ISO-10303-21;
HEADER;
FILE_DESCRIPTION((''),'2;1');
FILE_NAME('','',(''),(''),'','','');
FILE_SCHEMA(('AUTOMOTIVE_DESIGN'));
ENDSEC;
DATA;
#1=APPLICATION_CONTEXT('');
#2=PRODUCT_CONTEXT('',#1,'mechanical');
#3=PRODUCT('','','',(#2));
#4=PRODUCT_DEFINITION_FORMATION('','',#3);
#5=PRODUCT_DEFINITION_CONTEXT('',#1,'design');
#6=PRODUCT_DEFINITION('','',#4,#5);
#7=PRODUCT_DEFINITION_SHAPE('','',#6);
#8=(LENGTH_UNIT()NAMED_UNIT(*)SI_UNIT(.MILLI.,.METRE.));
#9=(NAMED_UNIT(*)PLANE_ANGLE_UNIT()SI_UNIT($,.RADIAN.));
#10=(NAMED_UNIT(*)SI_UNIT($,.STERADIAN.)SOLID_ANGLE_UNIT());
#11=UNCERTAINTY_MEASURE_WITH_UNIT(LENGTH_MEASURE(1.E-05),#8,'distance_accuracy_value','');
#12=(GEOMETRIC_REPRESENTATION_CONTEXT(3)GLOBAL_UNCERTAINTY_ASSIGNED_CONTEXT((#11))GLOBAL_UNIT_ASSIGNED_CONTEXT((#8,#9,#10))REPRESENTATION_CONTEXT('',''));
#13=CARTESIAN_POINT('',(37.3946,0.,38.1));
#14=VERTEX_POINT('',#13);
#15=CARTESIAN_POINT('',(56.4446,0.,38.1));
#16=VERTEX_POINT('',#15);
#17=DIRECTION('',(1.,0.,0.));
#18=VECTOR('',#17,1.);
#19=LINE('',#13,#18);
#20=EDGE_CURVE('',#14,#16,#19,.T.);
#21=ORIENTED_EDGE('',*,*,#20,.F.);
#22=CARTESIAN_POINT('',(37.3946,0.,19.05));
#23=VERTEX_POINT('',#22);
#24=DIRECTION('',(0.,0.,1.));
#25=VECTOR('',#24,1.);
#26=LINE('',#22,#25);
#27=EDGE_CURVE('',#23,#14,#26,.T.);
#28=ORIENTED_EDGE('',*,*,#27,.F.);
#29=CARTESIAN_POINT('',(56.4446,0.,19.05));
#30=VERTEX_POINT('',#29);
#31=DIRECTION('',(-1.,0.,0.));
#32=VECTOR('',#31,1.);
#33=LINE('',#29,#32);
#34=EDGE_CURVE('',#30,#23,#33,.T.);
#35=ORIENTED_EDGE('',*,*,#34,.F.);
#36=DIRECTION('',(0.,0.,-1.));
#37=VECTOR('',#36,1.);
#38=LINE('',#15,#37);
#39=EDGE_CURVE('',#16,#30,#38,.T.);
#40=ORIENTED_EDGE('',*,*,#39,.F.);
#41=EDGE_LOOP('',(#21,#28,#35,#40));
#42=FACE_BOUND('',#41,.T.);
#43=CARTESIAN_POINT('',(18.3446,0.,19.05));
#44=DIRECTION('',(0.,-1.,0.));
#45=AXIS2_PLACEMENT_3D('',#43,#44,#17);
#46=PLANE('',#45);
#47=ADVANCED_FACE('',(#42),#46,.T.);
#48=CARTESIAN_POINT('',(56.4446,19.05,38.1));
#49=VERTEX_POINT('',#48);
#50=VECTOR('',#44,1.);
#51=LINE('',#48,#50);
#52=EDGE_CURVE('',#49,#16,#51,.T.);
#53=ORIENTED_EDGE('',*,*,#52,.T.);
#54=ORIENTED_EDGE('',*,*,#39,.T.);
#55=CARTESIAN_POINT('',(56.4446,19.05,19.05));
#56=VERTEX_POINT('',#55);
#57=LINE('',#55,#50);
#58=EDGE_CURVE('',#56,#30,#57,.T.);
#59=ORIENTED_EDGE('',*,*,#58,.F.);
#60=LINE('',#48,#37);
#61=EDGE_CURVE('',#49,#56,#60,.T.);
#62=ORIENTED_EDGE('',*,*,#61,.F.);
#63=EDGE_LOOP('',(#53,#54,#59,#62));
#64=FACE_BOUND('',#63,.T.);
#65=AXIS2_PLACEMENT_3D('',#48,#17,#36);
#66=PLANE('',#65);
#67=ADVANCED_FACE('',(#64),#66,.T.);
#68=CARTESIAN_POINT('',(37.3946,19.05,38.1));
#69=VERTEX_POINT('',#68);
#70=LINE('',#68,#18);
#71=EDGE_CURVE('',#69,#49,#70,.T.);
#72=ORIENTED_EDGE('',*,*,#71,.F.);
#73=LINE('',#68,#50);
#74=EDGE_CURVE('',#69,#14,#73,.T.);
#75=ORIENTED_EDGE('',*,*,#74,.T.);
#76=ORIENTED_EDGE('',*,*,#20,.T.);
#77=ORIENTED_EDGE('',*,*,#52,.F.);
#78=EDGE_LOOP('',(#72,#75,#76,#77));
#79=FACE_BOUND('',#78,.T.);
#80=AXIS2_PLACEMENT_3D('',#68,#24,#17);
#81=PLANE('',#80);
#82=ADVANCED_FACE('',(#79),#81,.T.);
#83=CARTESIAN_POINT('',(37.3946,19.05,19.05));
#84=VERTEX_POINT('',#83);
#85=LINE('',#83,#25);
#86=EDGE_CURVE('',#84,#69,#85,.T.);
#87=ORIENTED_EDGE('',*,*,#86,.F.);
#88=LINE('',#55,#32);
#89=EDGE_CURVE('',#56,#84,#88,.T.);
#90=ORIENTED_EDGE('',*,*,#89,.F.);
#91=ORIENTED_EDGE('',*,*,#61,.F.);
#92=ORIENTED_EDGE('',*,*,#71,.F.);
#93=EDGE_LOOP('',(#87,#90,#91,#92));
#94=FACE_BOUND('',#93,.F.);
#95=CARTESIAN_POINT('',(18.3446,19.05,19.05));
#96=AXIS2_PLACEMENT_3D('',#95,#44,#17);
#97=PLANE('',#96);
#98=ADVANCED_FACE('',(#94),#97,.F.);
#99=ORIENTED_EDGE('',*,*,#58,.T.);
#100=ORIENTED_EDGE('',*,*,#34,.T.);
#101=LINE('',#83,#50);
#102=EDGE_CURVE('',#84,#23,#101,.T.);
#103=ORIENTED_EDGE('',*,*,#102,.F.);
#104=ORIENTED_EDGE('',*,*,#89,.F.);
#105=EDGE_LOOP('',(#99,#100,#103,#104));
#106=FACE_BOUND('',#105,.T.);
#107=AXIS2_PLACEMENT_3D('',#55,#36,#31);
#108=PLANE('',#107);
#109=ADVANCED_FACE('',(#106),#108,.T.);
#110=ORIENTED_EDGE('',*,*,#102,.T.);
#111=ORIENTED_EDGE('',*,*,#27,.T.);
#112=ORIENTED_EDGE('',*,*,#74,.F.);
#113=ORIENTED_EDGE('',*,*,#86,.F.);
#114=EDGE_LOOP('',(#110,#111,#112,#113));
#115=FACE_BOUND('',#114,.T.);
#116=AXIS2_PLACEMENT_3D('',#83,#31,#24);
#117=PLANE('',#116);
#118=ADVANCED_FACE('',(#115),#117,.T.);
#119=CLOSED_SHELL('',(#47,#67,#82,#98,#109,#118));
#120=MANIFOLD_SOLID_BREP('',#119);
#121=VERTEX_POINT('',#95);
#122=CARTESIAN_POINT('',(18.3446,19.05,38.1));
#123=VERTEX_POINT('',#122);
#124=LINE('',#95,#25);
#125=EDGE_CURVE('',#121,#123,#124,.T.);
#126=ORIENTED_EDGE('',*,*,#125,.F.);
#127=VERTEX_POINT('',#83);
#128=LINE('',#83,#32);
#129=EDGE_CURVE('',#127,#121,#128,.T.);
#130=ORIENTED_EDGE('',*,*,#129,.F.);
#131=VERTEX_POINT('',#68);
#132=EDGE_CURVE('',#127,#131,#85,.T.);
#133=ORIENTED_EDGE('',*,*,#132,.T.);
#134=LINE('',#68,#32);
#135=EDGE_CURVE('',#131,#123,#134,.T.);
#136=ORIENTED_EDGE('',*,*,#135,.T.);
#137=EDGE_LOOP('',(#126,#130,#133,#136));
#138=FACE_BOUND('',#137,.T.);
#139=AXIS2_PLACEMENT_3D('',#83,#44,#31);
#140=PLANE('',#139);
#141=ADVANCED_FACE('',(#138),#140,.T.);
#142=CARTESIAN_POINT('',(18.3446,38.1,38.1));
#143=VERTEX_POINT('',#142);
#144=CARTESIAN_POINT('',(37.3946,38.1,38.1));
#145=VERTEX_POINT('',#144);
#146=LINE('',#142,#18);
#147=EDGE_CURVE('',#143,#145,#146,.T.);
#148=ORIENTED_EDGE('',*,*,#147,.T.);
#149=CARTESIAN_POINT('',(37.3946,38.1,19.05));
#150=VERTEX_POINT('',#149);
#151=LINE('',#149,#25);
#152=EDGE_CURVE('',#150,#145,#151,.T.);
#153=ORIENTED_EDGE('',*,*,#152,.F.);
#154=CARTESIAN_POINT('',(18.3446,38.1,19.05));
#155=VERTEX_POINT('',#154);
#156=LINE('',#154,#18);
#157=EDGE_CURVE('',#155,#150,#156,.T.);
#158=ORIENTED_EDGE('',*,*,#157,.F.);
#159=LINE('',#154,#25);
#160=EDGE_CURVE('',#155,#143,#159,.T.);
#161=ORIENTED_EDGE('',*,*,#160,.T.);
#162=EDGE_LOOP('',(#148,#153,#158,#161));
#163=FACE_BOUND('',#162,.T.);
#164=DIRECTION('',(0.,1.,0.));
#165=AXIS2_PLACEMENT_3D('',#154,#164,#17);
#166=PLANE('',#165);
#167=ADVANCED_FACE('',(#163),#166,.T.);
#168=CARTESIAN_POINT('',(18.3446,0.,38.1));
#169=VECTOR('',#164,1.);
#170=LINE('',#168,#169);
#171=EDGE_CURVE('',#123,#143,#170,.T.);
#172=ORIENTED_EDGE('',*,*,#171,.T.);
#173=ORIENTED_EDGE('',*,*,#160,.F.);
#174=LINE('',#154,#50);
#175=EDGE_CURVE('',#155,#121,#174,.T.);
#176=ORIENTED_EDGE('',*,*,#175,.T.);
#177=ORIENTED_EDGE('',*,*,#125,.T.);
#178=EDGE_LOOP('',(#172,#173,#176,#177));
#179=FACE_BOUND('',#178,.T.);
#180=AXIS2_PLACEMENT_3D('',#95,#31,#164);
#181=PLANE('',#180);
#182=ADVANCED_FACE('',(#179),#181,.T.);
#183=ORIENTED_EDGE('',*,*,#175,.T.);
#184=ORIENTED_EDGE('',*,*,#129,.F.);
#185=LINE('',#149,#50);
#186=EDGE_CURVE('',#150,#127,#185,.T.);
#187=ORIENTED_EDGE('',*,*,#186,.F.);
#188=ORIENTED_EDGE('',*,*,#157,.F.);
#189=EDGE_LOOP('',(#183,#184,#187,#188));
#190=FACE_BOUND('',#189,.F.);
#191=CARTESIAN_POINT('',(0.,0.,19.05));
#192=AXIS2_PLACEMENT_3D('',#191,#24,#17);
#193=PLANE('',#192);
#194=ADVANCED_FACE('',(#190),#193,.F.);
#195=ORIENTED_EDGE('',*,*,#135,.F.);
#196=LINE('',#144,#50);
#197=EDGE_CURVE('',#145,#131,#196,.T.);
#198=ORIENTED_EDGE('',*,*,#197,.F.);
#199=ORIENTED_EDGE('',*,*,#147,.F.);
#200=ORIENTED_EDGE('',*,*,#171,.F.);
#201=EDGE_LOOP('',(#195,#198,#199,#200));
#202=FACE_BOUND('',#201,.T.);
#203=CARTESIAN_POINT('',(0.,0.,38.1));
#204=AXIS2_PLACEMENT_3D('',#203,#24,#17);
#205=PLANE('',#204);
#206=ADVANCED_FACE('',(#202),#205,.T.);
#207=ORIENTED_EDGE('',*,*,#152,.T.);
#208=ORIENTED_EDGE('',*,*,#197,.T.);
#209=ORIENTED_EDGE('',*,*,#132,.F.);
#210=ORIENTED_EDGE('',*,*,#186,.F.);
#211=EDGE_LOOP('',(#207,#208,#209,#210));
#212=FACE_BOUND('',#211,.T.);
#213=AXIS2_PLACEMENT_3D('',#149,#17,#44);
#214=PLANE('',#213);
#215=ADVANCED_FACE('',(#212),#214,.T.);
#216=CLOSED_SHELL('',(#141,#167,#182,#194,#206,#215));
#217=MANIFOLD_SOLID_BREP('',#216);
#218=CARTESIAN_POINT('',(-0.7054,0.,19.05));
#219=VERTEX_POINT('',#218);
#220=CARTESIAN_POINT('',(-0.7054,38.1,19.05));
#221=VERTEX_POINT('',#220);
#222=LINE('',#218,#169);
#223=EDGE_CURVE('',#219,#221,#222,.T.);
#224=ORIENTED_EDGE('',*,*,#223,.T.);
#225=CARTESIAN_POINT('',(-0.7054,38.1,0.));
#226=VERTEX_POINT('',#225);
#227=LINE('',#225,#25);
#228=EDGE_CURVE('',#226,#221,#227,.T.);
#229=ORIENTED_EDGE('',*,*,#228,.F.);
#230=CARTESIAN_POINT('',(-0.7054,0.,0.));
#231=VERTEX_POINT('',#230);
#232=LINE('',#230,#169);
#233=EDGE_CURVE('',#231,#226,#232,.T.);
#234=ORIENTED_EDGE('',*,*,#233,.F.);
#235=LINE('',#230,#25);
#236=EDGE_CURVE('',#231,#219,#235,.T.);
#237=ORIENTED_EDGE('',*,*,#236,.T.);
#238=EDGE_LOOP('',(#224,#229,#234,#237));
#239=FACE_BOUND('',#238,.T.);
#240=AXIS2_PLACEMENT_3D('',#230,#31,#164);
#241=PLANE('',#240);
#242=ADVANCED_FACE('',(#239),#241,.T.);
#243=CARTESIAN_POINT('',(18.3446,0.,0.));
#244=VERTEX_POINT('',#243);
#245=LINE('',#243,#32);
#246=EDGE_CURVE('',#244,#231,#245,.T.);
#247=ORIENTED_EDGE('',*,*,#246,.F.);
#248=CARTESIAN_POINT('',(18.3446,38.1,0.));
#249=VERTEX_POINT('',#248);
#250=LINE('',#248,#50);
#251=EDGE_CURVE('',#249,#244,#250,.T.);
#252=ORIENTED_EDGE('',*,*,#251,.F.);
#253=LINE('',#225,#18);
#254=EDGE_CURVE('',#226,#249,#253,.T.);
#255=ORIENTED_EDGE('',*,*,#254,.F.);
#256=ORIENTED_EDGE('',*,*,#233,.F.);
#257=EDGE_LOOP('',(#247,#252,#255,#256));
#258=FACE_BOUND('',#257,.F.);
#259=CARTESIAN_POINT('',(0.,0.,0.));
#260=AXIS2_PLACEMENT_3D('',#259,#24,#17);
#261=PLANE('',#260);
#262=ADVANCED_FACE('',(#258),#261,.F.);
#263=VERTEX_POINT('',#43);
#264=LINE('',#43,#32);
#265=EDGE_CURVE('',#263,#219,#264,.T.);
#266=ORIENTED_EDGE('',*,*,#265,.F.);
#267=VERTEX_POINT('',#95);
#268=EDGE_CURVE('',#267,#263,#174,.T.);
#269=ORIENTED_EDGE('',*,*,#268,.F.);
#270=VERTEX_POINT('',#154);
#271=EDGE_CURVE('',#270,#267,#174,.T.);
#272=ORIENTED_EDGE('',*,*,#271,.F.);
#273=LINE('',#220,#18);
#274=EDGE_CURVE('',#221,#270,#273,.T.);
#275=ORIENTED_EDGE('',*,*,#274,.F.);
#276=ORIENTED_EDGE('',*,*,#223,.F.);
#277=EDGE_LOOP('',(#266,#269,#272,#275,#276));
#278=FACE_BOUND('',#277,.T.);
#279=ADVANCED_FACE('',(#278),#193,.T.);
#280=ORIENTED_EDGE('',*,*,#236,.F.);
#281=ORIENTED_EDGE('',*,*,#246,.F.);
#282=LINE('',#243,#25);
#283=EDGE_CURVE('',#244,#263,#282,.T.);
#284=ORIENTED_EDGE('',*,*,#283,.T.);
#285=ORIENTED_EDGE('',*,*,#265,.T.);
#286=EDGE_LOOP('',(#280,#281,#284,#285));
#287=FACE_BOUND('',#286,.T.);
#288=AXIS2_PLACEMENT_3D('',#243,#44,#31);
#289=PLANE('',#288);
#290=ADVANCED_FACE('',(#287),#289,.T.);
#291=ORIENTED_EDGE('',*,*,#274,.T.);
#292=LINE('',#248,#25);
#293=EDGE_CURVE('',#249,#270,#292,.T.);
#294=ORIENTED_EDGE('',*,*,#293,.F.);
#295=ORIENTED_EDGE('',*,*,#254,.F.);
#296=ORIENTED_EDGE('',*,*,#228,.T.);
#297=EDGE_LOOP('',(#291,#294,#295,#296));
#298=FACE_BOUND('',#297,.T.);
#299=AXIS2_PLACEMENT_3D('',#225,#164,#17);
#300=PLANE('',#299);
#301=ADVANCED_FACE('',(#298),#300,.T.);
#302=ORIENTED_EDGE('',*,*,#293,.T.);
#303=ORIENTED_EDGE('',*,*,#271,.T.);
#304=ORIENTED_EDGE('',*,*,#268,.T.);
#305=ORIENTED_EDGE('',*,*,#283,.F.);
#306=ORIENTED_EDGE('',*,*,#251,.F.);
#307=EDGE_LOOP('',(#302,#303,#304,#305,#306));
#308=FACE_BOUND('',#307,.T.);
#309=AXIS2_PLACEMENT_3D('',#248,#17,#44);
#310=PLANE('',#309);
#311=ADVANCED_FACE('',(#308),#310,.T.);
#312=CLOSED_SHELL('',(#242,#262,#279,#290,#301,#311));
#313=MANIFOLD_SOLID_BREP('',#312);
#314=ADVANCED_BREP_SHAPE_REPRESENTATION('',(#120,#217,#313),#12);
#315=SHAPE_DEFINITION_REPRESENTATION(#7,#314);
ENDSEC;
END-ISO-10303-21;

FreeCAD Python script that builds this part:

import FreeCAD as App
import Part
import Sketcher

V = App.Vector
Q = App.Units.Quantity

doc = App.newDocument("Part")
params = doc.addObject("Spreadsheet::Sheet", "Params")
for row, (alias, value) in enumerate([
    ("sketch1_height", "1.5 in"),
    ("sketch1_width", "0.75 in"),
    ("pad1_length", "0.75 in"),
    ("sketch2_width", "0.75 in"),
    ("pad2_length", "0.75 in"),
    ("sketch3_width", "0.75 in"),
    ("pad3_length", "0.75 in"),
], start=1):
    params.set(f"A{row}", alias)
    params.set(f"B{row}", "=" + value)
    params.setAlias(f"B{row}", alias)

body = doc.addObject("PartDesign::Body", "Body")
body.AllowCompound = True

sketch1 = doc.addObject("Sketcher::SketchObject", "Sketch")
body.addObject(sketch1)
sketch1.AttachmentSupport = (doc.XY_Plane, [""])
sketch1.MapMode = "FlatFace"
sketch1.addGeometry(Part.LineSegment(V(18, 38, 0), V(-1, 38, 0)), False)
sketch1.addGeometry(Part.LineSegment(V(-1, 38, 0), V(-1, 0, 0)), False)
sketch1.addGeometry(Part.LineSegment(V(-1, 0, 0), V(18, 0, 0)), False)
sketch1.addGeometry(Part.LineSegment(V(18, 0, 0), V(18, 38, 0)), False)
sketch1.addConstraint(Sketcher.Constraint("Coincident", 0, 2, 1, 1))
sketch1.addConstraint(Sketcher.Constraint("Coincident", 1, 2, 2, 1))
sketch1.addConstraint(Sketcher.Constraint("Coincident", 2, 2, 3, 1))
sketch1.addConstraint(Sketcher.Constraint("Coincident", 3, 2, 0, 1))
sketch1.addConstraint(Sketcher.Constraint("Horizontal", 0))
sketch1.addConstraint(Sketcher.Constraint("Vertical", 1))
sketch1.addConstraint(Sketcher.Constraint("Horizontal", 2))
sketch1.addConstraint(Sketcher.Constraint("Vertical", 3))
sketch1.addConstraint(Sketcher.Constraint("PointOnObject", 1, 2, -1))
sketch1.addConstraint(Sketcher.Constraint("DistanceY", 1, 2, 1, 1, Q("1.5 in")))
sketch1.addConstraint(Sketcher.Constraint("DistanceX", 0, 2, 0, 1, Q("0.75 in")))
sketch1.addConstraint(Sketcher.Constraint("DistanceX", 0, 2, -1, 1, 0.7054))
sketch1.setExpression("Constraints[9]", "Params.sketch1_height")
sketch1.setExpression("Constraints[10]", "Params.sketch1_width")
pad1 = doc.addObject("PartDesign::Pad", "Pad")
body.addObject(pad1)
pad1.Profile = sketch1
pad1.setExpression("Length", "Params.pad1_length")

sketch2 = doc.addObject("Sketcher::SketchObject", "Sketch001")
body.addObject(sketch2)
sketch2.AttachmentSupport = (doc.XY_Plane, [""])
sketch2.MapMode = "FlatFace"
sketch2.AttachmentOffset = App.Placement(V(0, 0, 0.75 * 25.4), App.Rotation())
sketch2.addGeometry(Part.LineSegment(V(18, 38, 0), V(18, 19, 0)), False)
sketch2.addGeometry(Part.LineSegment(V(18, 19, 0), V(37, 19, 0)), False)
sketch2.addGeometry(Part.LineSegment(V(37, 19, 0), V(37, 38, 0)), False)
sketch2.addGeometry(Part.LineSegment(V(37, 38, 0), V(18, 38, 0)), False)
sketch2.addConstraint(Sketcher.Constraint("Coincident", 0, 2, 1, 1))
sketch2.addConstraint(Sketcher.Constraint("Coincident", 1, 2, 2, 1))
sketch2.addConstraint(Sketcher.Constraint("Coincident", 2, 2, 3, 1))
sketch2.addConstraint(Sketcher.Constraint("Coincident", 3, 2, 0, 1))
sketch2.addConstraint(Sketcher.Constraint("Vertical", 0))
sketch2.addConstraint(Sketcher.Constraint("Horizontal", 1))
sketch2.addConstraint(Sketcher.Constraint("Vertical", 2))
sketch2.addConstraint(Sketcher.Constraint("Horizontal", 3))
sketch2.addConstraint(Sketcher.Constraint("Equal", 3, 0))
sketch2.addConstraint(Sketcher.Constraint("DistanceX", 1, 1, 1, 2, Q("0.75 in")))
sketch2.addConstraint(Sketcher.Constraint("DistanceY", -1, 1, 0, 2, Q("0.75 in")))
sketch2.addConstraint(Sketcher.Constraint("DistanceX", -1, 1, 0, 2, 18.3446))
sketch2.setExpression("Constraints[9]", "Params.sketch2_width")
pad2 = doc.addObject("PartDesign::Pad", "Pad001")
body.addObject(pad2)
pad2.Profile = sketch2
pad2.setExpression("Length", "Params.pad2_length")

sketch3 = doc.addObject("Sketcher::SketchObject", "Sketch002")
body.addObject(sketch3)
sketch3.AttachmentSupport = (doc.XZ_Plane, [""])
sketch3.MapMode = "FlatFace"
sketch3.AttachmentOffset = App.Placement(V(0, 0, -0.75 * 25.4), App.Rotation())
sketch3.addGeometry(Part.LineSegment(V(37, 38, 0), V(37, 19, 0)), False)
sketch3.addGeometry(Part.LineSegment(V(37, 19, 0), V(56, 19, 0)), False)
sketch3.addGeometry(Part.LineSegment(V(56, 19, 0), V(56, 38, 0)), False)
sketch3.addGeometry(Part.LineSegment(V(56, 38, 0), V(37, 38, 0)), False)
sketch3.addConstraint(Sketcher.Constraint("Coincident", 0, 2, 1, 1))
sketch3.addConstraint(Sketcher.Constraint("Coincident", 1, 2, 2, 1))
sketch3.addConstraint(Sketcher.Constraint("Coincident", 2, 2, 3, 1))
sketch3.addConstraint(Sketcher.Constraint("Coincident", 3, 2, 0, 1))
sketch3.addConstraint(Sketcher.Constraint("Vertical", 0))
sketch3.addConstraint(Sketcher.Constraint("Horizontal", 1))
sketch3.addConstraint(Sketcher.Constraint("Vertical", 2))
sketch3.addConstraint(Sketcher.Constraint("Horizontal", 3))
sketch3.addConstraint(Sketcher.Constraint("Equal", 3, 0))
sketch3.addConstraint(Sketcher.Constraint("DistanceX", 1, 1, 1, 2, Q("0.75 in")))
sketch3.addConstraint(Sketcher.Constraint("DistanceY", -1, 1, 0, 2, Q("0.75 in")))
sketch3.addConstraint(Sketcher.Constraint("DistanceX", -1, 1, 0, 2, 37.3946))
sketch3.setExpression("Constraints[9]", "Params.sketch3_width")
pad3 = doc.addObject("PartDesign::Pad", "Pad002")
body.addObject(pad3)
pad3.Profile = sketch3
pad3.setExpression("Length", "Params.pad3_length")

doc.recompute()
